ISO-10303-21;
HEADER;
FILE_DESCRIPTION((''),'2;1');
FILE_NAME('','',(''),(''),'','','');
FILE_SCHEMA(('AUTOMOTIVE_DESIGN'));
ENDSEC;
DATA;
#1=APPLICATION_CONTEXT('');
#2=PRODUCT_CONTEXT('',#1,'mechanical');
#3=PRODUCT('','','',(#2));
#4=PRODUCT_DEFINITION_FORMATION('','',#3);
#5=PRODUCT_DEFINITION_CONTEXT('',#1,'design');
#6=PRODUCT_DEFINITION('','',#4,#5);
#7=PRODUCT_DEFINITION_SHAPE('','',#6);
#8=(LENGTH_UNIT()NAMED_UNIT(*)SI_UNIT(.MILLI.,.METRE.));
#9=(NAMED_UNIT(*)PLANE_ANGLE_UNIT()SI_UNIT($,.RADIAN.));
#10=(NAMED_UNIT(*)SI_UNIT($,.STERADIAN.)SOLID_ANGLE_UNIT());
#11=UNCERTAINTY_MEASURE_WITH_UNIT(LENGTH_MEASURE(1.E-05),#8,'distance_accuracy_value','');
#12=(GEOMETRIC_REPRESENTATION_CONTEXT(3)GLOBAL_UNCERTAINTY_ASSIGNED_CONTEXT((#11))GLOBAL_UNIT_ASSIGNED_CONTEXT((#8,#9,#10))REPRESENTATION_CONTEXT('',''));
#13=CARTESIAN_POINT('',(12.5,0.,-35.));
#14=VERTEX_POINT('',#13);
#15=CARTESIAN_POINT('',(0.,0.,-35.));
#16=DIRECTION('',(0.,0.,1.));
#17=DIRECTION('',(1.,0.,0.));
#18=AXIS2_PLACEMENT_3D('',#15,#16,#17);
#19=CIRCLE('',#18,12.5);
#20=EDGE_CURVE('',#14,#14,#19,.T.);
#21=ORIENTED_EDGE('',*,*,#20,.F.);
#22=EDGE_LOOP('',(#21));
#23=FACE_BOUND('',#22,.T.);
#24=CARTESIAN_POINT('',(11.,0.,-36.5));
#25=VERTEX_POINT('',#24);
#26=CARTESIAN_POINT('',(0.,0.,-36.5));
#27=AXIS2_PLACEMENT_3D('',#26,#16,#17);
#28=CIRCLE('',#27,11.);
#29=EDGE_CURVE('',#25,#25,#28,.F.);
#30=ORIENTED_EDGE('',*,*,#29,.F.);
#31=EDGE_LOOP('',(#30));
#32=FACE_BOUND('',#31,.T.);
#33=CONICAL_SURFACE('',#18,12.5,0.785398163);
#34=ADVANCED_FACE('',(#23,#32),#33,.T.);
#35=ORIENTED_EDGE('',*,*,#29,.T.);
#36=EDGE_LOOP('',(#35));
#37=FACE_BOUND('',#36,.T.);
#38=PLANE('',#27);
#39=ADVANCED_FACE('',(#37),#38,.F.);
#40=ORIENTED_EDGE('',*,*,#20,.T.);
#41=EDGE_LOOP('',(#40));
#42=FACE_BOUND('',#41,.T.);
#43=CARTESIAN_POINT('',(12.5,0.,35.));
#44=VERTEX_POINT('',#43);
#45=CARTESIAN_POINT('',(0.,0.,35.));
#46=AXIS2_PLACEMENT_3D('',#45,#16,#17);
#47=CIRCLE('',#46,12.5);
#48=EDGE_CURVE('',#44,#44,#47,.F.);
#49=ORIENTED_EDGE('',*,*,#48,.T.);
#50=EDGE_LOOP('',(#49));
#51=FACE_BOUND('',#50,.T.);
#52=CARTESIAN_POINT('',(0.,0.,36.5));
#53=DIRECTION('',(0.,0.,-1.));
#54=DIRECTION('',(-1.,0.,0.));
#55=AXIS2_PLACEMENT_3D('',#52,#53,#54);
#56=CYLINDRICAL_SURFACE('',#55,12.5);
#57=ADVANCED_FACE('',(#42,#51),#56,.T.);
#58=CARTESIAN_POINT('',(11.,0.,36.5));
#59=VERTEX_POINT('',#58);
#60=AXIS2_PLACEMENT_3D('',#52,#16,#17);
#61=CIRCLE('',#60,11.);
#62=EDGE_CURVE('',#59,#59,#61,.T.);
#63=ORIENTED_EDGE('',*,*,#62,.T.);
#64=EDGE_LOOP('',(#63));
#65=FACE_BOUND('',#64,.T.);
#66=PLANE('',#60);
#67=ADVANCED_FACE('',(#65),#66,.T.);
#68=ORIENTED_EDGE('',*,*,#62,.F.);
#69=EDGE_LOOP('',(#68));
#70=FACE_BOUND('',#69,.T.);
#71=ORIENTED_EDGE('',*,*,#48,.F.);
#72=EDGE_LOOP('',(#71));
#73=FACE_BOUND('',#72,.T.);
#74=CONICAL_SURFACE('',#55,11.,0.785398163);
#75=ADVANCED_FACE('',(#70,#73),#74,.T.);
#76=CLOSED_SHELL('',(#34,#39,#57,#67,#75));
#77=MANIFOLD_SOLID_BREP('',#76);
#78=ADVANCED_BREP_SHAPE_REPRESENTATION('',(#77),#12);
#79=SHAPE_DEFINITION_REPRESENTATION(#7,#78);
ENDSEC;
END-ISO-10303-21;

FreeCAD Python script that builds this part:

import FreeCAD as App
import Part
import Sketcher

V = App.Vector


def edges_at(feature, points):
    """Names of the edges that pass closest to the given points."""
    edges = feature.Shape.Edges
    near = lambda p: min(range(len(edges)), key=lambda i: edges[i].distToShape(Part.Vertex(*p))[0])
    return sorted({f"Edge{near(p) + 1}" for p in points})

doc = App.newDocument("Part")
params = doc.addObject("Spreadsheet::Sheet", "Params")
for row, (alias, value) in enumerate([
    ("sketch1_diameter", "25 mm"),
    ("pad1_length", "73 mm"),
    ("chamfer_size", "1.5 mm"),
], start=1):
    params.set(f"A{row}", alias)
    params.set(f"B{row}", "=" + value)
    params.setAlias(f"B{row}", alias)

body = doc.addObject("PartDesign::Body", "Body")

sketch1 = doc.addObject("Sketcher::SketchObject", "Sketch")
body.addObject(sketch1)
sketch1.AttachmentSupport = (doc.XY_Plane, [""])
sketch1.MapMode = "FlatFace"
sketch1.addGeometry(Part.Circle(V(0, 0, 0), V(0, 0, 1), 12.5), False)
sketch1.addConstraint([
    Sketcher.Constraint("Coincident", 0, 3, -1, 1),
    Sketcher.Constraint("Diameter", 0, 25.0),
])
sketch1.setExpression("Constraints[1]", "Params.sketch1_diameter")
pad1 = doc.addObject("PartDesign::Pad", "Pad")
body.addObject(pad1)
pad1.Profile = sketch1
pad1.setExpression("Length", "Params.pad1_length")
pad1.Midplane = True
doc.recompute()

chamfer = doc.addObject("PartDesign::Chamfer", "Chamfer")
body.addObject(chamfer)
chamfer.Base = (pad1, edges_at(pad1, [(-12.5, 0, -36.5), (-12.5, 0, 36.5)]))
chamfer.setExpression("Size", "Params.chamfer_size")

doc.recompute()
